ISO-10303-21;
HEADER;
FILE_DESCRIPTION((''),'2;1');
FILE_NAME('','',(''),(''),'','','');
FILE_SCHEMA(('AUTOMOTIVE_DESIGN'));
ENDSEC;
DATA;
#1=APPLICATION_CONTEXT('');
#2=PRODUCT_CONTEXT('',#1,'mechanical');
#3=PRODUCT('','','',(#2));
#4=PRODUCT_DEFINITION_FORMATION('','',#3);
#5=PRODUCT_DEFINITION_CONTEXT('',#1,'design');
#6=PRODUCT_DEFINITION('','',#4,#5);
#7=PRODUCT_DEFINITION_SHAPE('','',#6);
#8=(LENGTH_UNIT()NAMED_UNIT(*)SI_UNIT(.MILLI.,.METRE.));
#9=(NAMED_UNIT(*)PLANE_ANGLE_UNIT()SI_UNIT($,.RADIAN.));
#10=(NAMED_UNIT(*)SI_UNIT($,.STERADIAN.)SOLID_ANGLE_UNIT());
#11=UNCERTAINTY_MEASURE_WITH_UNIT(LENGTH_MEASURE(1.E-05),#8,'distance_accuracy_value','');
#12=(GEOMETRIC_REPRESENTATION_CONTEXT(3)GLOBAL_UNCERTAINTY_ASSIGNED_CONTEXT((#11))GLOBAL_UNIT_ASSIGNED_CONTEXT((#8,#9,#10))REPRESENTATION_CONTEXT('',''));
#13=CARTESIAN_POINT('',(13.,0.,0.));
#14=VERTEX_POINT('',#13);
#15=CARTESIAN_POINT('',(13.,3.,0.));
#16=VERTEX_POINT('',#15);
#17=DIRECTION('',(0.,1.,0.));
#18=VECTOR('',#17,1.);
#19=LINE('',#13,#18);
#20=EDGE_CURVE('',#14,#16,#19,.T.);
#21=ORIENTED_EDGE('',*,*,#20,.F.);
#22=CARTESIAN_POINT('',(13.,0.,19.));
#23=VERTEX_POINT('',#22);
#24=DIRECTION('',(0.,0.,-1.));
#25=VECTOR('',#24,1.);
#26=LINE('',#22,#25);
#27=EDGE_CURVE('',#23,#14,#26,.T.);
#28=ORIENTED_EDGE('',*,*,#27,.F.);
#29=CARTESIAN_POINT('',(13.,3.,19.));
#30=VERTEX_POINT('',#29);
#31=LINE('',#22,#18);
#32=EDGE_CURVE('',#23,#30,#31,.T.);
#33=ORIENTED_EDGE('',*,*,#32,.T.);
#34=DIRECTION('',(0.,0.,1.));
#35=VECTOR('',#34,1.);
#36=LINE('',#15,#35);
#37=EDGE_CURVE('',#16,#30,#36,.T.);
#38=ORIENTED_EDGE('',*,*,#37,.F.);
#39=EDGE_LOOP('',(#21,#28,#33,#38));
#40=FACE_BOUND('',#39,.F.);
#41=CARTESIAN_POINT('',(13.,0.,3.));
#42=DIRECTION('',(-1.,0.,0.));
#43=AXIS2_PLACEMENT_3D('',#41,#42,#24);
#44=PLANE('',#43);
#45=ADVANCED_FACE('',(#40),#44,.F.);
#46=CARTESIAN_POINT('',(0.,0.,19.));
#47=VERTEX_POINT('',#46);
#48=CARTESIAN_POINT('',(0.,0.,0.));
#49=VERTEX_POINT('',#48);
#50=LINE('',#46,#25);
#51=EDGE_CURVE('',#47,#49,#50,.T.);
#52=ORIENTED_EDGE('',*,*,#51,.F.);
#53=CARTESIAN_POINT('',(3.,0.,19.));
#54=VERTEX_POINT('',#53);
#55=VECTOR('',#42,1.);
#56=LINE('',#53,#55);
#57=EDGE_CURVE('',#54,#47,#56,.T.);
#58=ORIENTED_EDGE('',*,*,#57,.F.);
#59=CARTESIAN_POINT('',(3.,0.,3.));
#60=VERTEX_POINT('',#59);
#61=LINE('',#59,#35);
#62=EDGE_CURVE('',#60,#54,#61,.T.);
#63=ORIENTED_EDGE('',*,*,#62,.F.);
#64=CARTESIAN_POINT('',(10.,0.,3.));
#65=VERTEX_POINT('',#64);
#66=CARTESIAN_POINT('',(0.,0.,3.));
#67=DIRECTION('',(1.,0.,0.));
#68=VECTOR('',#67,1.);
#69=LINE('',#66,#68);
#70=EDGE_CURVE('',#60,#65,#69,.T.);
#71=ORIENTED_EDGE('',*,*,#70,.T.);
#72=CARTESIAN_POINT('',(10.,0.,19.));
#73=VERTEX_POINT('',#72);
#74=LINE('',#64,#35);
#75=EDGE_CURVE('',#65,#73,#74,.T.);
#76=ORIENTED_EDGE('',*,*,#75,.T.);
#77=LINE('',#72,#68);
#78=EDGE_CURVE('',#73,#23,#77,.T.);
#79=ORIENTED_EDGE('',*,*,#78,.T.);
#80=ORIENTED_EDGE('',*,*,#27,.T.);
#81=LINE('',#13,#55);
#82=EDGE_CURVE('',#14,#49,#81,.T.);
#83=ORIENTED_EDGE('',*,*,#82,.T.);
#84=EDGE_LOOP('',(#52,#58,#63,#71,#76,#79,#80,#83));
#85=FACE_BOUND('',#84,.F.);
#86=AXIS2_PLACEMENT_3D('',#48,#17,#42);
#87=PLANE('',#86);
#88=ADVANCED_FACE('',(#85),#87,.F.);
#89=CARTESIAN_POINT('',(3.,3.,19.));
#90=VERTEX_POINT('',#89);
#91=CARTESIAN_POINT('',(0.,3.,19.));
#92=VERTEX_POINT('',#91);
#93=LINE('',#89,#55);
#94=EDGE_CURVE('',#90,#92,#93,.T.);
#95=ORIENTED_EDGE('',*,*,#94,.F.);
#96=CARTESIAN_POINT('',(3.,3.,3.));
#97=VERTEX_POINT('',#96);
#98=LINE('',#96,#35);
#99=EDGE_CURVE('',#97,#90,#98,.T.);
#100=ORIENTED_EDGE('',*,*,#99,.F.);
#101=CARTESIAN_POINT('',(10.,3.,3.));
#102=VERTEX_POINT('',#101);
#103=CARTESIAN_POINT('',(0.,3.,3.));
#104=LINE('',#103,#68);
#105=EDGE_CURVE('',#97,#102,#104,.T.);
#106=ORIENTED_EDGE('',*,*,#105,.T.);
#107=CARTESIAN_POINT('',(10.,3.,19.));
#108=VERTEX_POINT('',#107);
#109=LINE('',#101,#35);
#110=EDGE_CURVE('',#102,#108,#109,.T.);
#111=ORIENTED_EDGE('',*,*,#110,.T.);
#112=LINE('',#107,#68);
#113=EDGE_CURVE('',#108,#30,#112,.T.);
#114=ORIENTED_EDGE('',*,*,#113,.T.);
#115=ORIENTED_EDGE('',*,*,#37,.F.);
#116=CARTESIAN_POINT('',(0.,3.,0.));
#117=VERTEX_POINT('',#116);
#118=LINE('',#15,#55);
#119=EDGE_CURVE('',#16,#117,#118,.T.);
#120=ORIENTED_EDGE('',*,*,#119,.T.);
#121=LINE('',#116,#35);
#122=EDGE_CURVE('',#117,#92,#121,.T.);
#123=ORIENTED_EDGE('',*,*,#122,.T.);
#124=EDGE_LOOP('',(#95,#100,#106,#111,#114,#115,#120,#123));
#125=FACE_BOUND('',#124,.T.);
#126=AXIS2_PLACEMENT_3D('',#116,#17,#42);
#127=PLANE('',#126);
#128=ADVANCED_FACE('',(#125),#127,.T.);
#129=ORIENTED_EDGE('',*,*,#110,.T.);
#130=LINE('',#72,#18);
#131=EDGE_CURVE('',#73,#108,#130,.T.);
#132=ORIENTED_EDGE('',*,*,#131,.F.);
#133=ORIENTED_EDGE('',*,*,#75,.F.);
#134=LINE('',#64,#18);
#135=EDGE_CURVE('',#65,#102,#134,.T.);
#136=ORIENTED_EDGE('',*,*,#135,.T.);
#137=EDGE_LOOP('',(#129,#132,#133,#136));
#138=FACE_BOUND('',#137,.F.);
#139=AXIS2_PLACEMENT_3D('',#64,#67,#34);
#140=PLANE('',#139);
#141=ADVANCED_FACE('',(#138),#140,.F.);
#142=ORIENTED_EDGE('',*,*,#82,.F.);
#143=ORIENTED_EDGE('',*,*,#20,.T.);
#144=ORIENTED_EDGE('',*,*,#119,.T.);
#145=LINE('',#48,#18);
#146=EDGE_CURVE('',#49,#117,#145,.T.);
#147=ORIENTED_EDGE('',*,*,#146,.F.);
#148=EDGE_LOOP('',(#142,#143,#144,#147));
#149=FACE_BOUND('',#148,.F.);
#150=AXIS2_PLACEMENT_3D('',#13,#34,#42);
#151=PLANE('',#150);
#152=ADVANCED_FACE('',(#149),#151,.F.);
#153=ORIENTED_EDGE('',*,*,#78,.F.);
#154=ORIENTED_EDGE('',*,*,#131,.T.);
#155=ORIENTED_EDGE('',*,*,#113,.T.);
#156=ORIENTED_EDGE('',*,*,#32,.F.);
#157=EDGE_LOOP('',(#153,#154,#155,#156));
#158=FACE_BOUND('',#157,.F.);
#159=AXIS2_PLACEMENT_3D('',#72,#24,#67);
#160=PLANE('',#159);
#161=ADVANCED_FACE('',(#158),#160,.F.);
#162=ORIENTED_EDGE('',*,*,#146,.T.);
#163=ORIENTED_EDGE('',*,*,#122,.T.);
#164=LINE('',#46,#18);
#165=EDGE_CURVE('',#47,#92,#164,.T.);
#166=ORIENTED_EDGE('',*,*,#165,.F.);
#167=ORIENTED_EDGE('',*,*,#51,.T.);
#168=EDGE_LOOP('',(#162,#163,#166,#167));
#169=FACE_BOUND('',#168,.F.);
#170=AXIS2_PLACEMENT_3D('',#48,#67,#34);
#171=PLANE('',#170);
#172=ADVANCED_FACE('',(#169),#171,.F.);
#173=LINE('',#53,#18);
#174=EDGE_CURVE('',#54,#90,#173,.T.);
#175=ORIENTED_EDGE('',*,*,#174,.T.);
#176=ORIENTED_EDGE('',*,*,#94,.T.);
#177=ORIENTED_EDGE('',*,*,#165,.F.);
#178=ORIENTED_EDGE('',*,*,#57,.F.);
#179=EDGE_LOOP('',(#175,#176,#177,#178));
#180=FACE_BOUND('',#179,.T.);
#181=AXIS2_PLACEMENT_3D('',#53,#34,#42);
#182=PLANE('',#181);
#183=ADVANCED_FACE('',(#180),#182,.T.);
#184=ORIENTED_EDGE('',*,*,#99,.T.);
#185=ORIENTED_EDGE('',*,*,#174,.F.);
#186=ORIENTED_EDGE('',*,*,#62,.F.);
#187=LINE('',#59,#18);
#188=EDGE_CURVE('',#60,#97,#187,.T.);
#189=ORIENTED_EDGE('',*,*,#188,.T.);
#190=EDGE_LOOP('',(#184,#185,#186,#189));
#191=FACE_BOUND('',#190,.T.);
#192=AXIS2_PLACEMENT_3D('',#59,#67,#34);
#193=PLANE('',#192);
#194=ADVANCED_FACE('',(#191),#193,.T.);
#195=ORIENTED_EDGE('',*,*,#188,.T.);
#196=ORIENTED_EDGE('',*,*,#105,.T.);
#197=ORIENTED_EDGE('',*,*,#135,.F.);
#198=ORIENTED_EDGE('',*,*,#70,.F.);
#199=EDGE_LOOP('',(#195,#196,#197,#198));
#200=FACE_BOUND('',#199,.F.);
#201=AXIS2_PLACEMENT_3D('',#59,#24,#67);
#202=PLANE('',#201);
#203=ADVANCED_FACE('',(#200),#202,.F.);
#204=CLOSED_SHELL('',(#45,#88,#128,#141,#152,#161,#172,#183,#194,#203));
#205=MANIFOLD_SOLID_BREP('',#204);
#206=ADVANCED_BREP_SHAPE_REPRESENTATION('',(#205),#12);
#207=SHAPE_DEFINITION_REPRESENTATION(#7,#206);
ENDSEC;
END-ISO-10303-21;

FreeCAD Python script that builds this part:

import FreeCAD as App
import Part
import Sketcher
from FreeCAD import Vector


def add_polygon(sketch, points):
    """Adds a closed chain of lines whose ends are joined by coincident constraints."""
    first, n = sketch.GeometryCount, len(points)
    for a, b in zip(points, points[1:] + points[:1]):
        sketch.addGeometry(Part.LineSegment(App.Vector(*a, 0), App.Vector(*b, 0)), False)
    for i in range(n):
        sketch.addConstraint(Sketcher.Constraint("Coincident", first + i, 2, first + (i + 1) % n, 1))

doc = App.newDocument("Part")
body = doc.addObject("PartDesign::Body", "Body")

# Sketch on XZ plane
sketch1 = doc.addObject("Sketcher::SketchObject", "Sketch")
body.addObject(sketch1)
sketch1.AttachmentSupport = (doc.XZ_Plane, [""])
sketch1.MapMode = "FlatFace"
add_polygon(sketch1, [(13, 0), (0, 0), (0, 19), (3, 19), (3, 3), (10, 3), (10, 19), (13, 19)])  # lines 0-7
sketch1.addConstraint([
    Sketcher.Constraint("Horizontal", 0),
    Sketcher.Constraint("Vertical", 1),
    Sketcher.Constraint("Horizontal", 2),
    Sketcher.Constraint("Vertical", 3),
    Sketcher.Constraint("Horizontal", 4),
    Sketcher.Constraint("Vertical", 5),
    Sketcher.Constraint("Horizontal", 6),
    Sketcher.Constraint("Vertical", 7),
    Sketcher.Constraint("Coincident", 0, 2, -1, 1),
    Sketcher.Constraint("Horizontal", 2, 2, 5, 2),
    Sketcher.Constraint("Equal", 2, 6),
    Sketcher.Constraint("DistanceX", 0, 2, 0, 1, 13.0),
    Sketcher.Constraint("DistanceX", 2, 1, 2, 2, 3.0),
    Sketcher.Constraint("DistanceY", 3, 2, 3, 1, 16.0),
    Sketcher.Constraint("DistanceY", -1, 1, 3, 2, 3.0),
])
pad1 = doc.addObject("PartDesign::Pad", "Pad")
body.addObject(pad1)
pad1.Profile = sketch1
pad1.Length = 3
pad1.Reversed = True

doc.recompute()
